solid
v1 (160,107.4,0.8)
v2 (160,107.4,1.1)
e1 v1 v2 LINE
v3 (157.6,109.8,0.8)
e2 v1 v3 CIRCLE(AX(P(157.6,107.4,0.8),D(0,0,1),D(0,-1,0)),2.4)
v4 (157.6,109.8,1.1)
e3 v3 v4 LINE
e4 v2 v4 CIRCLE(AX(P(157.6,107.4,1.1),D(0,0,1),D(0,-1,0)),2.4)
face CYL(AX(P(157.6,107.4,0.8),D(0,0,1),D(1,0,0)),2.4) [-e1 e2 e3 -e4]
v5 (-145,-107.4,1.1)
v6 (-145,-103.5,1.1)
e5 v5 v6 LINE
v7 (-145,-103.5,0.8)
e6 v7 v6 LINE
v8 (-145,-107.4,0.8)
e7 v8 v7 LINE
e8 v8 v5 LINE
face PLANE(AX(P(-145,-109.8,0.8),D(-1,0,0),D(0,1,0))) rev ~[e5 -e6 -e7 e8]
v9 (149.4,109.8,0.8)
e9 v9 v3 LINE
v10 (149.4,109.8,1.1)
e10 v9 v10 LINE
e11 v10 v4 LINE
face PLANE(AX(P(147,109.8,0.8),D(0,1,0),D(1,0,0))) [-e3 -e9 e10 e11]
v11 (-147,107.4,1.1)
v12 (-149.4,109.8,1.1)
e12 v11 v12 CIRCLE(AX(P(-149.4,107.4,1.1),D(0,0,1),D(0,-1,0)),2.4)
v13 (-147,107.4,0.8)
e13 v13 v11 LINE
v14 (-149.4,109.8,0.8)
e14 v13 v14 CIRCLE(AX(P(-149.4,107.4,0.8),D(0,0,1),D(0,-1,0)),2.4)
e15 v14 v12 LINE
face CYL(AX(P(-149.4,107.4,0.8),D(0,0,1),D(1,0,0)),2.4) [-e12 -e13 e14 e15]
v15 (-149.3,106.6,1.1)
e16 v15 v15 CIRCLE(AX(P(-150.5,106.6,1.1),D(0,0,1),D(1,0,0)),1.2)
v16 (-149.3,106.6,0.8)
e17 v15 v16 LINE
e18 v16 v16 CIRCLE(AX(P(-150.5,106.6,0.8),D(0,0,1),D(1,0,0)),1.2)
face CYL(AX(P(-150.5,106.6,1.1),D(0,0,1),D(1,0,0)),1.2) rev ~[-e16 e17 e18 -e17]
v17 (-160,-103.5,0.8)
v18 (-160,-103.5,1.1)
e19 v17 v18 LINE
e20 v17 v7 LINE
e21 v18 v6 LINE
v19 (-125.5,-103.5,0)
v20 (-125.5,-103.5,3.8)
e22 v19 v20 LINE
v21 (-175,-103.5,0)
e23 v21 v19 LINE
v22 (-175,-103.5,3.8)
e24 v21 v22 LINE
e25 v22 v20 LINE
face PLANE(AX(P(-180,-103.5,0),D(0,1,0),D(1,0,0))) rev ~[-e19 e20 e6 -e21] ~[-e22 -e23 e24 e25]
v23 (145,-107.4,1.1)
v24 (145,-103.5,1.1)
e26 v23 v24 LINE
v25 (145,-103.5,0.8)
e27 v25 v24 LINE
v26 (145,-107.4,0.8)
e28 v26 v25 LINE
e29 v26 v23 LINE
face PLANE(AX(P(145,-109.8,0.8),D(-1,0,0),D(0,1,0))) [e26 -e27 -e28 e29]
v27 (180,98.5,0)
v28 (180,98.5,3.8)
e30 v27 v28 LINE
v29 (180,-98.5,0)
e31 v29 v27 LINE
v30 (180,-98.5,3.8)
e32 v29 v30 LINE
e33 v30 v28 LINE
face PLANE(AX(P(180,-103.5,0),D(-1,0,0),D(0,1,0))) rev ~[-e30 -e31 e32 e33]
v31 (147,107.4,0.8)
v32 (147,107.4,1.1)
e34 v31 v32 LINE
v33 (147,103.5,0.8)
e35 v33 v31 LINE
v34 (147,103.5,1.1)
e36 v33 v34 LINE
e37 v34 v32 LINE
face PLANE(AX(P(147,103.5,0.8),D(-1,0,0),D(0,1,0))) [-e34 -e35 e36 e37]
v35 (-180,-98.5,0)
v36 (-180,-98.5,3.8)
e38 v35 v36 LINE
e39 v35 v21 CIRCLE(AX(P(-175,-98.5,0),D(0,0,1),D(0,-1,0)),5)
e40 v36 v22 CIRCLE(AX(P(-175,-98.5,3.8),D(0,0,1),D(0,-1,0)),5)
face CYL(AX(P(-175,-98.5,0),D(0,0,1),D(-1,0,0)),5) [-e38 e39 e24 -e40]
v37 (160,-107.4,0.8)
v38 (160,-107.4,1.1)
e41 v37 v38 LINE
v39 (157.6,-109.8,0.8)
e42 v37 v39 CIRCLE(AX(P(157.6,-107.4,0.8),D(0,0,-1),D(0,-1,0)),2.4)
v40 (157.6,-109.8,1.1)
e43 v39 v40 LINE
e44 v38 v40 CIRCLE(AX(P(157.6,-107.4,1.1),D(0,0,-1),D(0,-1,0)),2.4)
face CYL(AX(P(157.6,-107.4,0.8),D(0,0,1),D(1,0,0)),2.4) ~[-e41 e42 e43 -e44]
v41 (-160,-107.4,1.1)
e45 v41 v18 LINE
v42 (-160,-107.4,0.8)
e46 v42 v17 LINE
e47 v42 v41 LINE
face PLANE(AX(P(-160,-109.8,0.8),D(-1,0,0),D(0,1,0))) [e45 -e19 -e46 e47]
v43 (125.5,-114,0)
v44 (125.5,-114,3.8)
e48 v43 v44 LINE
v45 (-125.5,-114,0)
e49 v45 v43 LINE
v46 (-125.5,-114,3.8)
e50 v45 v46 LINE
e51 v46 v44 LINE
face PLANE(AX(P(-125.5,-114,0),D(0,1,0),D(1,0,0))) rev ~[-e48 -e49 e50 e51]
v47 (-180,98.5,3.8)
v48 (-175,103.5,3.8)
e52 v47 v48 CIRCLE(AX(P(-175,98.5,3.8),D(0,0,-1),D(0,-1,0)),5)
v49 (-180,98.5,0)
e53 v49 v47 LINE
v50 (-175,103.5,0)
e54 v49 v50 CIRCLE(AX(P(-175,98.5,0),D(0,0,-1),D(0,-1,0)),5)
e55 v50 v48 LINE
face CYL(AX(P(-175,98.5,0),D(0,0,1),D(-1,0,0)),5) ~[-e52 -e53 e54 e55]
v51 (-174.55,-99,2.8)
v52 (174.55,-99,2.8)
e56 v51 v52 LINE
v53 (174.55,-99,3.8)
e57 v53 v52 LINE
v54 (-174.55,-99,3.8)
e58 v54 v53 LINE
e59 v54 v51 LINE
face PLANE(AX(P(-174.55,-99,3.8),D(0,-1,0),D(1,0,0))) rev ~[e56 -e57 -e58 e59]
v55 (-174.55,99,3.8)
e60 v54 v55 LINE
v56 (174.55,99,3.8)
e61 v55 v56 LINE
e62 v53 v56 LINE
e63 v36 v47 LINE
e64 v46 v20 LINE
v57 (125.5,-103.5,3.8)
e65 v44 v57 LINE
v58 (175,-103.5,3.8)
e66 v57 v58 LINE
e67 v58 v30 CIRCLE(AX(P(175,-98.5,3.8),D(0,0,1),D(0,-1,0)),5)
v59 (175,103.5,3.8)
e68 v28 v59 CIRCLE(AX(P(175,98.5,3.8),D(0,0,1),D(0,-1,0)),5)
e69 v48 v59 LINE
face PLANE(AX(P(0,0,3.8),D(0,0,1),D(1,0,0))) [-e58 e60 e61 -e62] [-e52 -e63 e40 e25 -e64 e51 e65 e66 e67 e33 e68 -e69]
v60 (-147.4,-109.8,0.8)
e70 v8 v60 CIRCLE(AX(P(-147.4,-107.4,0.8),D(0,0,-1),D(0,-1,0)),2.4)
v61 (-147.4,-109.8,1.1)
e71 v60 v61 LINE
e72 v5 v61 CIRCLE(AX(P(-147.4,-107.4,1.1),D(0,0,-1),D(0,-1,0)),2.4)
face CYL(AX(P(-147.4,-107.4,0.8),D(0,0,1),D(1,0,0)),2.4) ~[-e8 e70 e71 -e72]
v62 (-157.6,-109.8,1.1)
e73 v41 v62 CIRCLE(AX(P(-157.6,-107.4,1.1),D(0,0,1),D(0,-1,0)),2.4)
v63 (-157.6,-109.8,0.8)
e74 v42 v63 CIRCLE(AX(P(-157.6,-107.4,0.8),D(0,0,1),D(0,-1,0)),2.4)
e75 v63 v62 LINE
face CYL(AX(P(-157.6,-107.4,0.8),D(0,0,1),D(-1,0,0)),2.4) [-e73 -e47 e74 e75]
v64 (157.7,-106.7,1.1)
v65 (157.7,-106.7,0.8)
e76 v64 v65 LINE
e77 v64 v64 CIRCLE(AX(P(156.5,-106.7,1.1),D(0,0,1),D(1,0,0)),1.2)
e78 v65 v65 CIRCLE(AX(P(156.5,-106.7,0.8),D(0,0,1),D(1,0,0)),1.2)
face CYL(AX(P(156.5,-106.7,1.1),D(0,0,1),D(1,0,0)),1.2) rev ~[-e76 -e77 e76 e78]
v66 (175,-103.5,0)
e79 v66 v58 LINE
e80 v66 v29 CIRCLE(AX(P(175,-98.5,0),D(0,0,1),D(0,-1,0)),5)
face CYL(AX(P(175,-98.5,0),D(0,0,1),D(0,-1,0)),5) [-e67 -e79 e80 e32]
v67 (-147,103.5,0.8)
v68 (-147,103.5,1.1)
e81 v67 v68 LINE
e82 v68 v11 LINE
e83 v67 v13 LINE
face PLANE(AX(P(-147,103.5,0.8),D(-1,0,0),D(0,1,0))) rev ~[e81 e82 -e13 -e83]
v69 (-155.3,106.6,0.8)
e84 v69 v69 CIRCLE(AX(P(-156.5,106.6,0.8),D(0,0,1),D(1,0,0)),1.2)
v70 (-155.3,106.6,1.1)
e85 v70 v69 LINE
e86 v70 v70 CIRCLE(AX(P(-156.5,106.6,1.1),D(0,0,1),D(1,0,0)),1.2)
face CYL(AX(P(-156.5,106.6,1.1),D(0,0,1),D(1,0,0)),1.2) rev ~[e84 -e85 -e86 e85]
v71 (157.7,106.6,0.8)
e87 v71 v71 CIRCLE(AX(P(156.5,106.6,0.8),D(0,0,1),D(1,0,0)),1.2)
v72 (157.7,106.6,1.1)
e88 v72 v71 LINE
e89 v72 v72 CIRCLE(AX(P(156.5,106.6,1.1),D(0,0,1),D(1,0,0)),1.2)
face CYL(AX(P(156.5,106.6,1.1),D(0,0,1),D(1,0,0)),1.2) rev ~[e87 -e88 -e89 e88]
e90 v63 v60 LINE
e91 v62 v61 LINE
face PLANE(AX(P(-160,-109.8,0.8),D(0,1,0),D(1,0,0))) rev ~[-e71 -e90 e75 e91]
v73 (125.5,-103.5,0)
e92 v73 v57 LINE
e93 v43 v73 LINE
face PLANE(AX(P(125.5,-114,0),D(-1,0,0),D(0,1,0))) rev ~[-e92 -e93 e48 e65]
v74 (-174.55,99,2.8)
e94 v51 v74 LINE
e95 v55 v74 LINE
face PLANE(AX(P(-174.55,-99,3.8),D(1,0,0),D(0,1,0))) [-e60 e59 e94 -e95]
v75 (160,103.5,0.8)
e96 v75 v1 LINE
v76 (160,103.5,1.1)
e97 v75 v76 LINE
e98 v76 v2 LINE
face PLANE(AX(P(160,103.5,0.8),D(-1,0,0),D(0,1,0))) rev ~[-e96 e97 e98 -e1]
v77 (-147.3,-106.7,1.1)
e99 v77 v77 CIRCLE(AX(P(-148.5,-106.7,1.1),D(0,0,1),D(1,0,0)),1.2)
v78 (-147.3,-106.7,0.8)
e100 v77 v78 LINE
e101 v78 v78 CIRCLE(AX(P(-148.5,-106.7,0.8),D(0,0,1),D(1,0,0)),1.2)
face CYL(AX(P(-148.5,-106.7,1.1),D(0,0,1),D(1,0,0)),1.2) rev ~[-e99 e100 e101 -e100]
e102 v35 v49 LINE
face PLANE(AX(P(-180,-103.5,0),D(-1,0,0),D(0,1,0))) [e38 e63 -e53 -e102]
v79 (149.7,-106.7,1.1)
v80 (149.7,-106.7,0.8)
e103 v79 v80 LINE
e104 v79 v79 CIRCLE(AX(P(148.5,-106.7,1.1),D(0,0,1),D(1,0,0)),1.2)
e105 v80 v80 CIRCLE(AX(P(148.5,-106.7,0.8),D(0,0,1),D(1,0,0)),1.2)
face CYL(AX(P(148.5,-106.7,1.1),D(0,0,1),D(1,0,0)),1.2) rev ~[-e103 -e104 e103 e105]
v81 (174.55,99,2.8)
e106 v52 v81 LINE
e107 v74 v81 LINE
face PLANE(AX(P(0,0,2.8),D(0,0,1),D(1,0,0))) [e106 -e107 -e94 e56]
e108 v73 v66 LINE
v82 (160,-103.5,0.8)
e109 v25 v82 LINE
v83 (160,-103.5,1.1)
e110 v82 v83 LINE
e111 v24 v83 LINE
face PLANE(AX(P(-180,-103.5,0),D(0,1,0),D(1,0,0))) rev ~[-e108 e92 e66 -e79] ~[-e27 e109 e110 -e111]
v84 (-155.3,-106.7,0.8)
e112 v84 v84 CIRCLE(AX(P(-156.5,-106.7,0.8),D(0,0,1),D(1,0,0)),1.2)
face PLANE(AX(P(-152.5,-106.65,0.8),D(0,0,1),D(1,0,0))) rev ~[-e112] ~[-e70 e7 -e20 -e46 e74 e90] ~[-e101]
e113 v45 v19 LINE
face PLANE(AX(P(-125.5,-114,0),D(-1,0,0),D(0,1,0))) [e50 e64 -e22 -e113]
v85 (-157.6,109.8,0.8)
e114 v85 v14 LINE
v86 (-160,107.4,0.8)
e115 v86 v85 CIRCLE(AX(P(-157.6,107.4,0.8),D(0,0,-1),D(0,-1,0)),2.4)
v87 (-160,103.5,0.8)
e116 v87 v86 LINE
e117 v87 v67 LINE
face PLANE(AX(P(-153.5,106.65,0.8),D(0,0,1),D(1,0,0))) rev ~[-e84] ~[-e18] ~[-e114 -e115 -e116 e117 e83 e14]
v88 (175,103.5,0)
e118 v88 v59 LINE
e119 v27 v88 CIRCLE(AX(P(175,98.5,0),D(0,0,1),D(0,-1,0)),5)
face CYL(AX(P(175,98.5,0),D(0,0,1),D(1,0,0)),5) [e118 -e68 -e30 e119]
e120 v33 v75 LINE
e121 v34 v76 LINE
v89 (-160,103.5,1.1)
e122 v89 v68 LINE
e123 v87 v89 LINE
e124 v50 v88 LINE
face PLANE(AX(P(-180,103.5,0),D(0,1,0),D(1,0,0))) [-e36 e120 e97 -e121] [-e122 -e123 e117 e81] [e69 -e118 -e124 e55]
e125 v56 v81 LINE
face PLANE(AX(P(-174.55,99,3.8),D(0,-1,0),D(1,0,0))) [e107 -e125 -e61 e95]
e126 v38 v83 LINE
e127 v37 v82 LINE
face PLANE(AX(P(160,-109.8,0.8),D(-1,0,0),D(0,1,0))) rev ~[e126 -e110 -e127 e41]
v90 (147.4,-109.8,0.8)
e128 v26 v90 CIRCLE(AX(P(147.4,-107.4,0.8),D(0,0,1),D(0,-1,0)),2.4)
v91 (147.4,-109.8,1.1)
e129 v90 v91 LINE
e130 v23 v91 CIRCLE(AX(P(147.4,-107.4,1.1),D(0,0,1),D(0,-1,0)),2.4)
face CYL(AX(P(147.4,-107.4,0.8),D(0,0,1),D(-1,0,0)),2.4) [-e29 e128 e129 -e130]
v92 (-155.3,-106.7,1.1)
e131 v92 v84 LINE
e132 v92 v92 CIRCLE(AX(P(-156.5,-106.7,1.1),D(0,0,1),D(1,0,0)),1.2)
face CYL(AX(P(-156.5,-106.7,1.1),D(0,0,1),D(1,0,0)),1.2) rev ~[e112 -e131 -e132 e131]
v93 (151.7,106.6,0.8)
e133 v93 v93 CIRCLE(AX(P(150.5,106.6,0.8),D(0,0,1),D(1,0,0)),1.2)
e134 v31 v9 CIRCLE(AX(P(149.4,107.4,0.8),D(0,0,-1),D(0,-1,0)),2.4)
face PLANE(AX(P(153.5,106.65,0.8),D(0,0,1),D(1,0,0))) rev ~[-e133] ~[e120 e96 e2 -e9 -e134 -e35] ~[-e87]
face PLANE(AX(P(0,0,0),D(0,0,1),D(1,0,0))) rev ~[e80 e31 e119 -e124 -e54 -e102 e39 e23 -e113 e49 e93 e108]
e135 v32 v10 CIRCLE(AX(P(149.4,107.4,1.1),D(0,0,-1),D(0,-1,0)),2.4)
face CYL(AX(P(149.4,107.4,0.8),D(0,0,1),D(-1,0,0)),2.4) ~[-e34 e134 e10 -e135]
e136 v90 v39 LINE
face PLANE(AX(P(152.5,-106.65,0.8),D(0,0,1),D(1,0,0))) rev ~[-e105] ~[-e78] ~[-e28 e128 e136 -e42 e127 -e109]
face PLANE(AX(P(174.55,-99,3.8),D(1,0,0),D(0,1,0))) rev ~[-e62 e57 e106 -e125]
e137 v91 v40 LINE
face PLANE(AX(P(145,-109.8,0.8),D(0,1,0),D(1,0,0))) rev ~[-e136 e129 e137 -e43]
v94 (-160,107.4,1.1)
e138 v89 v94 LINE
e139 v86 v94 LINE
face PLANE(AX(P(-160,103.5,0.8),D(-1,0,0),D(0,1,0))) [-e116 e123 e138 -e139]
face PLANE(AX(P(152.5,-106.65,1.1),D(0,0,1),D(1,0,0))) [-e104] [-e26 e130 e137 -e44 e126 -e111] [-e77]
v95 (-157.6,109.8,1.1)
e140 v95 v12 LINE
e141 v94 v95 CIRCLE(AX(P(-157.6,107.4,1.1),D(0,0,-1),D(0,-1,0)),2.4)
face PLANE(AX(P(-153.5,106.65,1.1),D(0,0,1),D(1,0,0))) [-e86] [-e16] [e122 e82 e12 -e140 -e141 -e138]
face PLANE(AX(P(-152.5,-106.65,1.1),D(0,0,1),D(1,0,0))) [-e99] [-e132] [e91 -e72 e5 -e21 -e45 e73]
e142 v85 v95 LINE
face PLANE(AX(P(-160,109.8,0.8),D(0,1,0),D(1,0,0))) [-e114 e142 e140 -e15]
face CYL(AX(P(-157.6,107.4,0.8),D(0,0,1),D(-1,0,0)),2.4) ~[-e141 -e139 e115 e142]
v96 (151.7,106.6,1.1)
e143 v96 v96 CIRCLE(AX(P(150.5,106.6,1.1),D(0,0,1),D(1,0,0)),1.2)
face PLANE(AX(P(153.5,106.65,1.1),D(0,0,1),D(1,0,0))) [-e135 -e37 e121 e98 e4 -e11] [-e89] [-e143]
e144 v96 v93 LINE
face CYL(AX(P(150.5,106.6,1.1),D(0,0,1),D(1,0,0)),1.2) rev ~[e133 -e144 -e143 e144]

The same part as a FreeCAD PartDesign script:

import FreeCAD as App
import Part
import Sketcher

V = App.Vector
Q = App.Units.Quantity


def edges_at(feature, points):
    """Names of the edges that pass closest to the given points."""
    edges = feature.Shape.Edges
    near = lambda p: min(range(len(edges)), key=lambda i: edges[i].distToShape(Part.Vertex(*p))[0])
    return sorted({f"Edge{near(p) + 1}" for p in points})


def add_polygon(sketch, points):
    """Adds a closed chain of lines whose ends are joined by coincident constraints."""
    first, n = sketch.GeometryCount, len(points)
    for a, b in zip(points, points[1:] + points[:1]):
        sketch.addGeometry(Part.LineSegment(App.Vector(*a, 0), App.Vector(*b, 0)), False)
    for i in range(n):
        sketch.addConstraint(Sketcher.Constraint("Coincident", first + i, 2, first + (i + 1) % n, 1))

doc = App.newDocument("Part")
body = doc.addObject("PartDesign::Body", "Body")

# Sketch on XY plane
sketch1 = body.newObject("Sketcher::SketchObject", "Sketch")
sketch1.AttachmentSupport = (doc.getObject("XY_Plane"), [""])
sketch1.MapMode = "FlatFace"
add_polygon(sketch1, [(-180, 103.5), (-180, -103.5), (180, -103.5), (180, 103.5)])  # lines 0-3
sketch1.addConstraint(Sketcher.Constraint("Vertical", 0))
sketch1.addConstraint(Sketcher.Constraint("Horizontal", 1))
sketch1.addConstraint(Sketcher.Constraint("Vertical", 2))
sketch1.addConstraint(Sketcher.Constraint("Horizontal", 3))
sketch1.addConstraint(Sketcher.Constraint("Symmetric", 0, 2, 2, 2, -1, 1))
sketch1.addConstraint(Sketcher.Constraint("DistanceX", 1, 1, 1, 2, Q("360 mm")))
sketch1.addConstraint(Sketcher.Constraint("DistanceY", 0, 2, 0, 1, Q("207 mm")))
pad1 = body.newObject("PartDesign::Pad", "Pad")
pad1.Profile = sketch1
pad1.Length = 3.8
doc.recompute()

fillet = body.newObject("PartDesign::Fillet", "Fillet")
fillet.Base = (pad1, edges_at(pad1, [
    (180, 103.5, 1.9),
    (-180, 103.5, 1.9),
    (-180, -103.5, 1.9),
    (180, -103.5, 1.9),
]))
fillet.Radius = 5

# Sketch on XY plane
sketch2 = body.newObject("Sketcher::SketchObject", "Sketch001")
sketch2.AttachmentSupport = (doc.getObject("XY_Plane"), [""])
sketch2.MapMode = "FlatFace"
sketch2.AttachmentOffset = App.Placement(V(0, 0, 3.8), App.Rotation())
add_polygon(sketch2, [(-174.55, 99), (-174.55, -99), (174.55, -99), (174.55, 99)])  # lines 0-3
sketch2.addConstraint(Sketcher.Constraint("Vertical", 0))
sketch2.addConstraint(Sketcher.Constraint("Horizontal", 1))
sketch2.addConstraint(Sketcher.Constraint("Vertical", 2))
sketch2.addConstraint(Sketcher.Constraint("Horizontal", 3))
sketch2.addConstraint(Sketcher.Constraint("Symmetric", 0, 2, 2, 2, -1, 1))
sketch2.addConstraint(Sketcher.Constraint("DistanceY", 0, 2, 0, 1, Q("198 mm")))
sketch2.addConstraint(Sketcher.Constraint("DistanceX", 1, 1, 1, 2, Q("349.1 mm")))
pocket1 = body.newObject("PartDesign::Pocket", "Pocket")
pocket1.Profile = sketch2
pocket1.Length = 1

# Sketch on XY plane
sketch3 = body.newObject("Sketcher::SketchObject", "Sketch002")
sketch3.AttachmentSupport = (doc.getObject("XY_Plane"), [""])
sketch3.MapMode = "FlatFace"
sketch3.AttachmentOffset = App.Placement(V(0, 0, 0.8), App.Rotation())
add_polygon(sketch3, [(-160, 109.8), (-160, 103.5), (-147, 103.5), (-147, 109.8)])  # lines 0-3
add_polygon(sketch3, [(147, 109.8), (147, 103.5), (160, 103.5), (160, 109.8)])  # lines 4-7
add_polygon(sketch3, [(-160, -103.5), (-160, -109.8), (-145, -109.8), (-145, -103.5)])  # lines 8-11
add_polygon(sketch3, [(145, -103.5), (145, -109.8), (160, -109.8), (160, -103.5)])  # lines 12-15
sketch3.addConstraint(Sketcher.Constraint("Vertical", 0))
sketch3.addConstraint(Sketcher.Constraint("Horizontal", 1))
sketch3.addConstraint(Sketcher.Constraint("Vertical", 2))
sketch3.addConstraint(Sketcher.Constraint("Horizontal", 3))
sketch3.addConstraint(Sketcher.Constraint("Vertical", 4))
sketch3.addConstraint(Sketcher.Constraint("Horizontal", 5))
sketch3.addConstraint(Sketcher.Constraint("Vertical", 6))
sketch3.addConstraint(Sketcher.Constraint("Horizontal", 7))
sketch3.addConstraint(Sketcher.Constraint("Vertical", 8))
sketch3.addConstraint(Sketcher.Constraint("Horizontal", 9))
sketch3.addConstraint(Sketcher.Constraint("Vertical", 10))
sketch3.addConstraint(Sketcher.Constraint("Horizontal", 11))
sketch3.addConstraint(Sketcher.Constraint("Vertical", 12))
sketch3.addConstraint(Sketcher.Constraint("Horizontal", 13))
sketch3.addConstraint(Sketcher.Constraint("Vertical", 14))
sketch3.addConstraint(Sketcher.Constraint("Horizontal", 15))
sketch3.addConstraint(Sketcher.Constraint("Symmetric", 6, 2, 8, 2, -1, 1))
sketch3.addConstraint(Sketcher.Constraint("Symmetric", 3, 2, 13, 2, -1, 1))
sketch3.addConstraint(Sketcher.Constraint("Symmetric", 1, 2, 4, 2, -2))
sketch3.addConstraint(Sketcher.Constraint("Symmetric", 3, 2, 6, 2, -2))
sketch3.addConstraint(Sketcher.Constraint("Symmetric", 10, 2, 15, 2, -2))
sketch3.addConstraint(Sketcher.Constraint("Equal", 6, 8))
sketch3.addConstraint(Sketcher.Constraint("DistanceX", 1, 1, 1, 2, Q("13 mm")))
sketch3.addConstraint(Sketcher.Constraint("DistanceX", 9, 1, 9, 2, Q("15 mm")))
sketch3.addConstraint(Sketcher.Constraint("DistanceY", 0, 2, 0, 1, Q("6.3 mm")))
sketch3.addConstraint(Sketcher.Constraint("DistanceX", 0, 2, -1, 1, Q("160 mm")))
sketch3.addConstraint(Sketcher.Constraint("DistanceY", 10, 2, 1, 2, Q("207 mm")))
pad2 = body.newObject("PartDesign::Pad", "Pad001")
pad2.Profile = sketch3
pad2.Length = 0.3
doc.recompute()

fillet2 = body.newObject("PartDesign::Fillet", "Fillet001")
fillet2.Base = (pad2, edges_at(pad2, [
    (-160, 109.8, 0.95),
    (-147, 109.8, 0.95),
    (147, 109.8, 0.95),
    (160, 109.8, 0.95),
    (145, -109.8, 0.95),
    (160, -109.8, 0.95),
    (-160, -109.8, 0.95),
    (-145, -109.8, 0.95),
]))
fillet2.Radius = 2.4

# Sketch on XY plane
sketch4 = body.newObject("Sketcher::SketchObject", "Sketch003")
sketch4.AttachmentSupport = (doc.getObject("XY_Plane"), [""])
sketch4.MapMode = "FlatFace"
sketch4.AttachmentOffset = App.Placement(V(0, 0, 1.1), App.Rotation())
sketch4.addGeometry(Part.Circle(V(-156.5, 106.6, 0), V(0, 0, 1), 1.2), False)
sketch4.addGeometry(Part.Circle(V(-150.5, 106.6, 0), V(0, 0, 1), 1.2), False)
sketch4.addGeometry(Part.Circle(V(150.5, 106.6, 0), V(0, 0, 1), 1.2), False)
sketch4.addGeometry(Part.Circle(V(156.5, 106.6, 0), V(0, 0, 1), 1.2), False)
sketch4.addGeometry(Part.Circle(V(148.5, -106.7, 0), V(0, 0, 1), 1.2), False)
sketch4.addGeometry(Part.Circle(V(156.5, -106.7, 0), V(0, 0, 1), 1.2), False)
sketch4.addGeometry(Part.Circle(V(-156.5, -106.7, 0), V(0, 0, 1), 1.2), False)
sketch4.addGeometry(Part.Circle(V(-148.5, -106.7, 0), V(0, 0, 1), 1.2), False)
sketch4.addConstraint(Sketcher.Constraint("Equal", 0, 1))
sketch4.addConstraint(Sketcher.Constraint("Equal", 1, 2))
sketch4.addConstraint(Sketcher.Constraint("Equal", 2, 3))
sketch4.addConstraint(Sketcher.Constraint("Equal", 3, 4))
sketch4.addConstraint(Sketcher.Constraint("Equal", 4, 5))
sketch4.addConstraint(Sketcher.Constraint("Equal", 5, 6))
sketch4.addConstraint(Sketcher.Constraint("Equal", 6, 7))
sketch4.addConstraint(Sketcher.Constraint("Symmetric", 1, 3, 2, 3, -2))
sketch4.addConstraint(Sketcher.Constraint("Symmetric", 0, 3, 3, 3, -2))
sketch4.addConstraint(Sketcher.Constraint("Symmetric", 5, 3, 6, 3, -2))
sketch4.addConstraint(Sketcher.Constraint("Symmetric", 4, 3, 7, 3, -2))
sketch4.addConstraint(Sketcher.Constraint("Horizontal", 0, 3, 1, 3))
sketch4.addConstraint(Sketcher.Constraint("Horizontal", 4, 3, 5, 3))
sketch4.addConstraint(Sketcher.Constraint("Vertical", 3, 3, 5, 3))
sketch4.addConstraint(Sketcher.Constraint("Diameter", 0, Q("2.4 mm")))
sketch4.addConstraint(Sketcher.Constraint("DistanceX", 0, 3, 1, 3, Q("6 mm")))
sketch4.addConstraint(Sketcher.Constraint("DistanceX", 1, 3, 2, 3, Q("301 mm")))
sketch4.addConstraint(Sketcher.Constraint("DistanceX", 4, 3, 2, 3, Q("2 mm")))
sketch4.addConstraint(Sketcher.Constraint("DistanceY", -1, 1, 0, 3, Q("106.6 mm")))
sketch4.addConstraint(Sketcher.Constraint("DistanceY", 4, 3, -1, 1, Q("106.7 mm")))
pocket2 = body.newObject("PartDesign::Pocket", "Pocket001")
pocket2.Profile = sketch4
pocket2.Type = "ThroughAll"

# Sketch on XY plane
sketch5 = body.newObject("Sketcher::SketchObject", "Sketch004")
sketch5.AttachmentSupport = (doc.getObject("XY_Plane"), [""])
sketch5.MapMode = "FlatFace"
add_polygon(sketch5, [(-125.5, -103.5), (-125.5, -114), (125.5, -114), (125.5, -103.5)])  # lines 0-3
sketch5.addConstraint(Sketcher.Constraint("Vertical", 0))
sketch5.addConstraint(Sketcher.Constraint("Horizontal", 1))
sketch5.addConstraint(Sketcher.Constraint("Vertical", 2))
sketch5.addConstraint(Sketcher.Constraint("Horizontal", 3))
sketch5.addConstraint(Sketcher.Constraint("DistanceX", 1, 1, 1, 2, Q("251 mm")))
sketch5.addConstraint(Sketcher.Constraint("DistanceY", 0, 2, 0, 1, Q("10.5 mm")))
sketch5.addConstraint(Sketcher.Constraint("DistanceY", 0, 2, -1, 1, Q("114 mm")))
sketch5.addConstraint(Sketcher.Constraint("DistanceX", 0, 2, -1, 1, Q("125.5 mm")))
pad3 = body.newObject("PartDesign::Pad", "Pad002")
pad3.Profile = sketch5
pad3.Length = 3.8

doc.recompute()
